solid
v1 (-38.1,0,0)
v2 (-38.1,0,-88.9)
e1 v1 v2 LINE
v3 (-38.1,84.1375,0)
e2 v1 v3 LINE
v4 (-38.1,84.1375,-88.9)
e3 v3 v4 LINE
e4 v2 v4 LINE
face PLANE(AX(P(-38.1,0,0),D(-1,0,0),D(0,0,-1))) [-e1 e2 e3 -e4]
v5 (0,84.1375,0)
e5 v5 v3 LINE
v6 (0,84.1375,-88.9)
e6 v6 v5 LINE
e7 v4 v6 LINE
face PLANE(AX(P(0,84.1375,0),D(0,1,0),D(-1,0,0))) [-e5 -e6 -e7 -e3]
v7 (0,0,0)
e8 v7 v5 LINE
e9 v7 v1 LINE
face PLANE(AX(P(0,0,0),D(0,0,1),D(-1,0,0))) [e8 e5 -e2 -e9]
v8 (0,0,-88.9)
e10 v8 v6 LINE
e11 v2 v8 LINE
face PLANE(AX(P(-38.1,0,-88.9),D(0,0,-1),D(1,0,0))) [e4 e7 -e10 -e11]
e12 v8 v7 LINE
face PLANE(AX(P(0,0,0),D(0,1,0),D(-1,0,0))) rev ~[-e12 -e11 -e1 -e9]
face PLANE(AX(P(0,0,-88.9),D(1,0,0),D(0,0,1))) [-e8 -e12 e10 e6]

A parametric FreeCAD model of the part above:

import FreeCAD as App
import Part
import Sketcher
from FreeCAD import Vector
Q = App.Units.Quantity

doc = App.newDocument("Part")
body = doc.addObject("PartDesign::Body", "Body")

# Sketch on XZ plane
sketch1 = body.newObject("Sketcher::SketchObject", "Sketch")
sketch1.AttachmentSupport = (doc.getObject("XZ_Plane"), [""])
sketch1.MapMode = "FlatFace"
sketch1.addGeometry(Part.LineSegment(Vector(-38.1, 0, 0), Vector(0, 0, 0)), False)
sketch1.addGeometry(Part.LineSegment(Vector(0, 0, 0), Vector(0, -88.9, 0)), False)
sketch1.addGeometry(Part.LineSegment(Vector(0, -88.9, 0), Vector(-38.1, -88.9, 0)), False)
sketch1.addGeometry(Part.LineSegment(Vector(-38.1, -88.9, 0), Vector(-38.1, 0, 0)), False)
sketch1.addConstraint(Sketcher.Constraint("Coincident", 0, 2, 1, 1))
sketch1.addConstraint(Sketcher.Constraint("Coincident", 1, 2, 2, 1))
sketch1.addConstraint(Sketcher.Constraint("Coincident", 2, 2, 3, 1))
sketch1.addConstraint(Sketcher.Constraint("Coincident", 3, 2, 0, 1))
sketch1.addConstraint(Sketcher.Constraint("Horizontal", 0))
sketch1.addConstraint(Sketcher.Constraint("Vertical", 1))
sketch1.addConstraint(Sketcher.Constraint("Horizontal", 2))
sketch1.addConstraint(Sketcher.Constraint("Vertical", 3))
sketch1.addConstraint(Sketcher.Constraint("Coincident", 0, 2, -1, 1))
sketch1.addConstraint(Sketcher.Constraint("DistanceX", 0, 1, 0, 2, Q("1.5 in")))
sketch1.addConstraint(Sketcher.Constraint("DistanceY", 1, 2, 1, 1, Q("3.5 in")))
pad1 = body.newObject("PartDesign::Pad", "Pad")
pad1.Profile = sketch1
pad1.Length = Q("3.3125 in")
pad1.Reversed = True

doc.recompute()
